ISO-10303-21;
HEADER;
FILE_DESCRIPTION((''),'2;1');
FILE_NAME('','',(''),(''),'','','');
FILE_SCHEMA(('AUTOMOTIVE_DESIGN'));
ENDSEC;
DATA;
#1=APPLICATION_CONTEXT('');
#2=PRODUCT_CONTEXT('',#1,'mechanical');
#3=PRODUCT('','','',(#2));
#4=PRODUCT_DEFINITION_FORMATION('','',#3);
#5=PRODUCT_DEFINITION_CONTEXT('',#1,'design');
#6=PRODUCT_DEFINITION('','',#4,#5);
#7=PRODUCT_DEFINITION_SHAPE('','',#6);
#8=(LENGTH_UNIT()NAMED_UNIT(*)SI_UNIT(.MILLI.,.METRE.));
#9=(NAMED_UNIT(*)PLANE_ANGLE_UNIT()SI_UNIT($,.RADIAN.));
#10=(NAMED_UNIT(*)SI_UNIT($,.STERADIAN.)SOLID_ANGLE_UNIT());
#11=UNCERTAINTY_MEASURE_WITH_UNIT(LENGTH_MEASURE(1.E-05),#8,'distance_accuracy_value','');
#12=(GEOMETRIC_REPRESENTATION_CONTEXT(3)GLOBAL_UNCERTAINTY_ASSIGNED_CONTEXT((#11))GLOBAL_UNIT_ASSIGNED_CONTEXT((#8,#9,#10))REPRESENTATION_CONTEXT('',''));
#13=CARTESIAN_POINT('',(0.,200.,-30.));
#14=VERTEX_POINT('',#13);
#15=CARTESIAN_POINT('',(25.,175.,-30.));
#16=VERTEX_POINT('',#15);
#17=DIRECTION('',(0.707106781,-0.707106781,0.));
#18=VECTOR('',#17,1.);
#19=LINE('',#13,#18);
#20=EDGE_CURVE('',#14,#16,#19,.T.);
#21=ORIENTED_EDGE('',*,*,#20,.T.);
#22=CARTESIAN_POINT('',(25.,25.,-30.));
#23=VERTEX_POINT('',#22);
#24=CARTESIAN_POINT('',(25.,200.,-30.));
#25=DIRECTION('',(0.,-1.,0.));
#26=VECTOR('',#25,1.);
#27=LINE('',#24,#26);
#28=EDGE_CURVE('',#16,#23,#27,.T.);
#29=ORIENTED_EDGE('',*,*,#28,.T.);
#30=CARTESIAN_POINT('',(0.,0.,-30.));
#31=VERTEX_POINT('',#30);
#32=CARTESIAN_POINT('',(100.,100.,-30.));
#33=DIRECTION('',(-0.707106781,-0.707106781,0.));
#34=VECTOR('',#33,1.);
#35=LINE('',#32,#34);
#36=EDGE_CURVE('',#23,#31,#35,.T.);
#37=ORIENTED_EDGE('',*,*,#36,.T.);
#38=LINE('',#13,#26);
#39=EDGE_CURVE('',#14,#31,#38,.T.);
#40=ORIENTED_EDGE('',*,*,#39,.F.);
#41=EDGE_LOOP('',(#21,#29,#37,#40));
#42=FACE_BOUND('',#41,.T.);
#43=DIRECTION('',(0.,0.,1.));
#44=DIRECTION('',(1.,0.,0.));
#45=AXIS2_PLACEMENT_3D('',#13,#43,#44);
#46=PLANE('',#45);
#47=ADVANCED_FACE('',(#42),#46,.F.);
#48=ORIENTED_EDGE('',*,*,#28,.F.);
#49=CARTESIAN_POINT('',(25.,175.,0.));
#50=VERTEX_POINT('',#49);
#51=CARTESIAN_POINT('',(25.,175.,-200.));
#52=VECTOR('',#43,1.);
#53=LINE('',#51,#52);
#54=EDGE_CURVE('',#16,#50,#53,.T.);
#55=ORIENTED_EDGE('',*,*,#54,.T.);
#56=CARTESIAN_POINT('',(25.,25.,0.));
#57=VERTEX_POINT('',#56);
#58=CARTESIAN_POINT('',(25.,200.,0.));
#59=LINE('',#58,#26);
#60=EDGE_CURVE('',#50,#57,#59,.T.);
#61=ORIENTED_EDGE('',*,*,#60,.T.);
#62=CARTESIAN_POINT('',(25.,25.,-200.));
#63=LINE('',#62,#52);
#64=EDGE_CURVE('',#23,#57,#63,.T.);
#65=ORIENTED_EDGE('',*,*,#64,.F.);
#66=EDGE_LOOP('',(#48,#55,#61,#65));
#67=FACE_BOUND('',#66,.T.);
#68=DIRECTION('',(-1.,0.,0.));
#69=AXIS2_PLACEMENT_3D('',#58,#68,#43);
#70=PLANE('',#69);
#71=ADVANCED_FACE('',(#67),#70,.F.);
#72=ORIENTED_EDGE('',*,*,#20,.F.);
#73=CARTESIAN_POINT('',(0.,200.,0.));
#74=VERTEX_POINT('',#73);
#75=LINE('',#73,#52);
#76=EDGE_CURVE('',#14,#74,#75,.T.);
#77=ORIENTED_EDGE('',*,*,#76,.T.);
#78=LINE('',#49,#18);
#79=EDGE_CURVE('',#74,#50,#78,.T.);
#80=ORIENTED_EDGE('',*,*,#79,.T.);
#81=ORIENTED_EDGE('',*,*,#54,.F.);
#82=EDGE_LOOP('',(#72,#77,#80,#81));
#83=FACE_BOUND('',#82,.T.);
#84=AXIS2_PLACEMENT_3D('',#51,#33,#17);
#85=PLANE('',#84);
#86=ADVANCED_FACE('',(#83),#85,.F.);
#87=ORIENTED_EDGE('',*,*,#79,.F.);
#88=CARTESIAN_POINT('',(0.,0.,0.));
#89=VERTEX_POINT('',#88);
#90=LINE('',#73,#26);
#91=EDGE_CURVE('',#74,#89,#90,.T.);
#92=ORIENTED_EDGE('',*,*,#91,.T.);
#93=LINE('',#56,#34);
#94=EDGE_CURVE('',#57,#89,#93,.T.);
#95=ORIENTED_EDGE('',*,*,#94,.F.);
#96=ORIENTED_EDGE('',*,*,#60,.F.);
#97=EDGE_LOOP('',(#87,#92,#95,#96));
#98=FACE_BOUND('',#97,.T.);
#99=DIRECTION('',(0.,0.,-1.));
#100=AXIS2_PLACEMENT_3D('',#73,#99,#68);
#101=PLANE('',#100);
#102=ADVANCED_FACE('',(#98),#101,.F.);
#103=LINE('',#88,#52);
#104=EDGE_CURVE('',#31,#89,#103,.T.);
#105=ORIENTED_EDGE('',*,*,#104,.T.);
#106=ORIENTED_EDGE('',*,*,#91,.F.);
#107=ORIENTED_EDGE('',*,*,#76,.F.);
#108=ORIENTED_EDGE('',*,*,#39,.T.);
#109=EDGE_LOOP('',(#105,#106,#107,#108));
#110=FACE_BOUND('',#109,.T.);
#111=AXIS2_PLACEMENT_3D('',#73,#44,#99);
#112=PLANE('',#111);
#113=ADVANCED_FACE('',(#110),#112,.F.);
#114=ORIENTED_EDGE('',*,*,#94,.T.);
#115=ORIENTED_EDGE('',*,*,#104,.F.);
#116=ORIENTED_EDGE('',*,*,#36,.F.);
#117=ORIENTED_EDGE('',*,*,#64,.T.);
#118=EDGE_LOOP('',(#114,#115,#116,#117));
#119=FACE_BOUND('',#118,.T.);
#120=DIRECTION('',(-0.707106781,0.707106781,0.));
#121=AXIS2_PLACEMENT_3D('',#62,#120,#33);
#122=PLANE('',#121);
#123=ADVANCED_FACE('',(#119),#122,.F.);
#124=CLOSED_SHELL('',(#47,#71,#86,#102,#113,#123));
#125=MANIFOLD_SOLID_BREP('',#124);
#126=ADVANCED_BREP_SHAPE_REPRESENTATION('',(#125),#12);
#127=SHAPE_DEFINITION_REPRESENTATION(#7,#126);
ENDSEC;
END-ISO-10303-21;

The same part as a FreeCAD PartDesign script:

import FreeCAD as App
import Part
import Sketcher
from FreeCAD import Vector


def add_polygon(sketch, points):
    """Adds a closed chain of lines whose ends are joined by coincident constraints."""
    first, n = sketch.GeometryCount, len(points)
    for a, b in zip(points, points[1:] + points[:1]):
        sketch.addGeometry(Part.LineSegment(App.Vector(*a, 0), App.Vector(*b, 0)), False)
    for i in range(n):
        sketch.addConstraint(Sketcher.Constraint("Coincident", first + i, 2, first + (i + 1) % n, 1))

doc = App.newDocument("Part")
body = doc.addObject("PartDesign::Body", "Body")

# Sketch on XZ plane
sketch1 = body.newObject("Sketcher::SketchObject", "Sketch")
sketch1.AttachmentSupport = (doc.getObject("XZ_Plane"), [""])
sketch1.MapMode = "FlatFace"
add_polygon(sketch1, [(0, -30), (0, 0), (25, 0), (25, -30)])  # lines 0-3
sketch1.addConstraint(Sketcher.Constraint("Vertical", 0))
sketch1.addConstraint(Sketcher.Constraint("Horizontal", 1))
sketch1.addConstraint(Sketcher.Constraint("Vertical", 2))
sketch1.addConstraint(Sketcher.Constraint("Horizontal", 3))
sketch1.addConstraint(Sketcher.Constraint("Coincident", 0, 2, -1, 1))
sketch1.addConstraint(Sketcher.Constraint("DistanceX", 1, 1, 1, 2, 25.0))
sketch1.addConstraint(Sketcher.Constraint("DistanceY", 0, 1, 0, 2, 30.0))
pad1 = body.newObject("PartDesign::Pad", "Pad")
pad1.Profile = sketch1
pad1.Length = 200
pad1.Reversed = True

# Sketch on XY plane
sketch2 = body.newObject("Sketcher::SketchObject", "Sketch001")
sketch2.AttachmentSupport = (doc.getObject("XY_Plane"), [""])
sketch2.MapMode = "FlatFace"
add_polygon(sketch2, [(0, 0), (25, 0), (25, 25)])  # lines 0-2
add_polygon(sketch2, [(0, 200), (25, 175), (25, 200)])  # lines 3-5
sketch2.addConstraint(Sketcher.Constraint("Horizontal", 0))
sketch2.addConstraint(Sketcher.Constraint("Vertical", 1))
sketch2.addConstraint(Sketcher.Constraint("Vertical", 4))
sketch2.addConstraint(Sketcher.Constraint("Horizontal", 5))
sketch2.addConstraint(Sketcher.Constraint("Coincident", 2, 2, -1, 1))
sketch2.addConstraint(Sketcher.Constraint("PointOnObject", 5, 2, -2))
sketch2.addConstraint(Sketcher.Constraint("Perpendicular", 2, 3))
sketch2.addConstraint(Sketcher.Constraint("Vertical", 1, 2, 3, 2))
sketch2.addConstraint(Sketcher.Constraint("Equal", 5, 1))
sketch2.addConstraint(Sketcher.Constraint("DistanceX", 0, 1, 0, 2, 25.0))
sketch2.addConstraint(Sketcher.Constraint("DistanceY", -1, 1, 3, 2, 175.0))
pocket1 = body.newObject("PartDesign::Pocket", "Pocket")
pocket1.Profile = sketch2
pocket1.Length = 200

doc.recompute()
